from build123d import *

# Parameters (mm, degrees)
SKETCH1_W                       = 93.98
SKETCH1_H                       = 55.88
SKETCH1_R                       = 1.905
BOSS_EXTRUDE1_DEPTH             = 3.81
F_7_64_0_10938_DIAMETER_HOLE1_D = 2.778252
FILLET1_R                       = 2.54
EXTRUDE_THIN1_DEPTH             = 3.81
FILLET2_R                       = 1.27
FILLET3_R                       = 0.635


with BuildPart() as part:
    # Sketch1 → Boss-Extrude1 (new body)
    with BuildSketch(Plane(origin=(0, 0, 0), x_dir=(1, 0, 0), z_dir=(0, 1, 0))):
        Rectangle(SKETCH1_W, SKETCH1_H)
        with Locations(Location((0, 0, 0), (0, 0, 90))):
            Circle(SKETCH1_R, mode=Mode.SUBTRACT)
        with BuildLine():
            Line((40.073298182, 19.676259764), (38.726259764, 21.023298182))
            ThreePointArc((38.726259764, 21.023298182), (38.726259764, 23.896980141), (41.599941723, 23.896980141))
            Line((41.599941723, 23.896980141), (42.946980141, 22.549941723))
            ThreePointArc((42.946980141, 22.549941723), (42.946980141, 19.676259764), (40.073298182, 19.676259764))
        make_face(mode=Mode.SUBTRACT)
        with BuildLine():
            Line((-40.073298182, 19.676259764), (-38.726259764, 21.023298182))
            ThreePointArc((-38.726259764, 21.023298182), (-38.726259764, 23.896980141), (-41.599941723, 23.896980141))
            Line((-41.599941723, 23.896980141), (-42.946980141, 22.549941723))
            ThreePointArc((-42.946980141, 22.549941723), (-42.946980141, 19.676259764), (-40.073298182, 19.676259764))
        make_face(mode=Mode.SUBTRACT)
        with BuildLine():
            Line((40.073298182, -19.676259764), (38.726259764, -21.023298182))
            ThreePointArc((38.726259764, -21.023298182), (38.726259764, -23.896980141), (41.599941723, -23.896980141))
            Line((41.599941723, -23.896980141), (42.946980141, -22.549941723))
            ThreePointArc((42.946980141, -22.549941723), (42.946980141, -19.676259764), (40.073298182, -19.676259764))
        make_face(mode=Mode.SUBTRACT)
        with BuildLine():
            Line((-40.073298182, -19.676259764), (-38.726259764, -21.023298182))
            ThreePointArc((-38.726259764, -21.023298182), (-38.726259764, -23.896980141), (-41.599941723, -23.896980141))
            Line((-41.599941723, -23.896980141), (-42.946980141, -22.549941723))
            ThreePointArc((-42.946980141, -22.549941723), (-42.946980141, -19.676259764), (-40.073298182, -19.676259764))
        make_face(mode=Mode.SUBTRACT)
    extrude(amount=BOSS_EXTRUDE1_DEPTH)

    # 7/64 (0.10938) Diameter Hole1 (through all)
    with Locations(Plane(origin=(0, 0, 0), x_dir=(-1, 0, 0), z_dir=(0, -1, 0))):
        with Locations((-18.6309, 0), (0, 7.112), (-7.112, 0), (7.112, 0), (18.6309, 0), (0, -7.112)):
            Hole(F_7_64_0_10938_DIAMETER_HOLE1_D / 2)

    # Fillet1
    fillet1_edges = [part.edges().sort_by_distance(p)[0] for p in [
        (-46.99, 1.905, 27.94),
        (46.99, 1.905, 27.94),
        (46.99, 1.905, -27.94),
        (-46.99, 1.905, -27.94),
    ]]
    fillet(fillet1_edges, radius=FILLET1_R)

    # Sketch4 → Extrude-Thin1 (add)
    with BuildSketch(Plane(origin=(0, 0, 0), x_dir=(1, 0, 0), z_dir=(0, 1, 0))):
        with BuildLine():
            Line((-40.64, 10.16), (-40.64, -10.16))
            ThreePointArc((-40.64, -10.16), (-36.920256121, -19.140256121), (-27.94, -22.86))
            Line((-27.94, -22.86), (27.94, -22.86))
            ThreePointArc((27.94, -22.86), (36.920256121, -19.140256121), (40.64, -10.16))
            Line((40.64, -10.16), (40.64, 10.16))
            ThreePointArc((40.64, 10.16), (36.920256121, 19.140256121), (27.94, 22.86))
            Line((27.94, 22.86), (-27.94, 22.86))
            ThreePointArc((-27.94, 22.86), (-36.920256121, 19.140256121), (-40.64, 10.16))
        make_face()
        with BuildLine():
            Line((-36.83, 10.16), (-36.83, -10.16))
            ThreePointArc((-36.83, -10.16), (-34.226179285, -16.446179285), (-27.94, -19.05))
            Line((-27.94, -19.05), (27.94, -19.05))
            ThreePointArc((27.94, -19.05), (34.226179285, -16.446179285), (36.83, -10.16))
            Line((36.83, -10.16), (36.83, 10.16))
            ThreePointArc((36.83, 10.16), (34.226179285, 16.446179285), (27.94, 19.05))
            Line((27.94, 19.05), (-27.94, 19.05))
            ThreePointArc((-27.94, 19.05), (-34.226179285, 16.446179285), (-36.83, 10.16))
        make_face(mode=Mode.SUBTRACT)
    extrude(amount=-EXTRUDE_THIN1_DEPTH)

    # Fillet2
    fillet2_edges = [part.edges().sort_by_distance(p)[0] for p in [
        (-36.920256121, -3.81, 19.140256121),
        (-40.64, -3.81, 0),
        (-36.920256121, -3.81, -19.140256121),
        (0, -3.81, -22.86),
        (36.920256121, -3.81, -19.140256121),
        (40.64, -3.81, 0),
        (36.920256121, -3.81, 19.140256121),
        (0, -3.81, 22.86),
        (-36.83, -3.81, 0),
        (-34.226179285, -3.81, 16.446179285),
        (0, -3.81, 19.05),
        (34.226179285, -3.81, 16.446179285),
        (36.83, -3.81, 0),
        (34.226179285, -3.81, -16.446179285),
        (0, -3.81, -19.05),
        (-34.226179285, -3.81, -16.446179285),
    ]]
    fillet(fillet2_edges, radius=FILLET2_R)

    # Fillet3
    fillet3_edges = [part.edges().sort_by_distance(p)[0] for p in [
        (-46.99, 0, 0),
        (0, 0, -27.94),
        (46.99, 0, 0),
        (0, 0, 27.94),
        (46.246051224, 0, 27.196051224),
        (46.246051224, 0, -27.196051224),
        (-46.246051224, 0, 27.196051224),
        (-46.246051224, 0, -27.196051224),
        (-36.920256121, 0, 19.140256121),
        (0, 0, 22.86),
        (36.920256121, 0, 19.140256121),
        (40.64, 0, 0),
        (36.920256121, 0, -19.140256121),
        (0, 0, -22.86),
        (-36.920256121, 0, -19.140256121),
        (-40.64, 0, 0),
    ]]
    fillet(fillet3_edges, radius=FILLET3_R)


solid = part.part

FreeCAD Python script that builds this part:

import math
import FreeCAD as App
import Part
import Sketcher
Q = App.Units.Quantity


def edges_at(feature, points):
    """Names of the edges that pass closest to the given points."""
    edges = feature.Shape.Edges
    near = lambda p: min(range(len(edges)), key=lambda i: edges[i].distToShape(Part.Vertex(*p))[0])
    return sorted({f"Edge{near(p) + 1}" for p in points})

doc = App.newDocument("Part")
body = doc.addObject("PartDesign::Body", "Body")

# Sketch on XZ plane
sketch1 = body.newObject("Sketcher::SketchObject", "Sketch")
sketch1.AttachmentSupport = (doc.getObject("XZ_Plane"), [""])
sketch1.MapMode = "FlatFace"
sketch1.addGeometry(Part.LineSegment(App.Vector(-47, -27.9, 0), App.Vector(-47, 27.9, 0)), False)
sketch1.addGeometry(Part.LineSegment(App.Vector(-47, 27.9, 0), App.Vector(47, 27.9, 0)), False)
sketch1.addGeometry(Part.LineSegment(App.Vector(47, 27.9, 0), App.Vector(47, -27.9, 0)), False)
sketch1.addGeometry(Part.LineSegment(App.Vector(47, -27.9, 0), App.Vector(-47, -27.9, 0)), False)
sketch1.addGeometry(Part.ArcOfCircle(Part.Circle(App.Vector(-41.5, 21.1, 0), App.Vector(0, 0, 1), 2), math.radians(135), math.radians(315)), False)
sketch1.addGeometry(Part.LineSegment(App.Vector(-40.1, 19.7, 0), App.Vector(-38.7, 21, 0)), False)
sketch1.addGeometry(Part.ArcOfCircle(Part.Circle(App.Vector(-40.2, 22.5, 0), App.Vector(0, 0, 1), 2), math.radians(-45), math.radians(135)), False)
sketch1.addGeometry(Part.LineSegment(App.Vector(-41.6, 23.9, 0), App.Vector(-42.9, 22.5, 0)), False)
sketch1.addGeometry(Part.LineSegment(App.Vector(38.7, 21, 0), App.Vector(40.1, 19.7, 0)), False)
sketch1.addGeometry(Part.ArcOfCircle(Part.Circle(App.Vector(41.5, 21.1, 0), App.Vector(0, 0, 1), 2), math.radians(-135), math.radians(45)), False)
sketch1.addGeometry(Part.LineSegment(App.Vector(42.9, 22.5, 0), App.Vector(41.6, 23.9, 0)), False)
sketch1.addGeometry(Part.ArcOfCircle(Part.Circle(App.Vector(40.2, 22.5, 0), App.Vector(0, 0, 1), 2), math.radians(45), math.radians(225)), False)
sketch1.addGeometry(Part.LineSegment(App.Vector(-38.7, -21, 0), App.Vector(-40.1, -19.7, 0)), False)
sketch1.addGeometry(Part.ArcOfCircle(Part.Circle(App.Vector(-41.5, -21.1, 0), App.Vector(0, 0, 1), 2), math.radians(45), math.radians(225)), False)
sketch1.addGeometry(Part.LineSegment(App.Vector(-42.9, -22.5, 0), App.Vector(-41.6, -23.9, 0)), False)
sketch1.addGeometry(Part.ArcOfCircle(Part.Circle(App.Vector(-40.2, -22.5, 0), App.Vector(0, 0, 1), 2), math.radians(-135), math.radians(45)), False)
sketch1.addGeometry(Part.Circle(App.Vector(0, 0, 0), App.Vector(0, 0, 1), 1.9), False)
sketch1.addGeometry(Part.ArcOfCircle(Part.Circle(App.Vector(41.5, -21.1, 0), App.Vector(0, 0, 1), 2), math.radians(-45), math.radians(135)), False)
sketch1.addGeometry(Part.LineSegment(App.Vector(40.1, -19.7, 0), App.Vector(38.7, -21, 0)), False)
sketch1.addGeometry(Part.ArcOfCircle(Part.Circle(App.Vector(40.2, -22.5, 0), App.Vector(0, 0, 1), 2), math.radians(135), math.radians(315)), False)
sketch1.addGeometry(Part.LineSegment(App.Vector(41.6, -23.9, 0), App.Vector(42.9, -22.5, 0)), False)
sketch1.addConstraint(Sketcher.Constraint("Coincident", 0, 2, 1, 1))
sketch1.addConstraint(Sketcher.Constraint("Coincident", 1, 2, 2, 1))
sketch1.addConstraint(Sketcher.Constraint("Coincident", 2, 2, 3, 1))
sketch1.addConstraint(Sketcher.Constraint("Coincident", 3, 2, 0, 1))
sketch1.addConstraint(Sketcher.Constraint("Tangent", 4, 2, 5, 1))
sketch1.addConstraint(Sketcher.Constraint("Tangent", 5, 2, 6, 1))
sketch1.addConstraint(Sketcher.Constraint("Tangent", 6, 2, 7, 1))
sketch1.addConstraint(Sketcher.Constraint("Tangent", 7, 2, 4, 1))
sketch1.addConstraint(Sketcher.Constraint("Tangent", 8, 2, 9, 1))
sketch1.addConstraint(Sketcher.Constraint("Tangent", 9, 2, 10, 1))
sketch1.addConstraint(Sketcher.Constraint("Tangent", 10, 2, 11, 1))
sketch1.addConstraint(Sketcher.Constraint("Tangent", 11, 2, 8, 1))
sketch1.addConstraint(Sketcher.Constraint("Tangent", 12, 2, 13, 1))
sketch1.addConstraint(Sketcher.Constraint("Tangent", 13, 2, 14, 1))
sketch1.addConstraint(Sketcher.Constraint("Tangent", 14, 2, 15, 1))
sketch1.addConstraint(Sketcher.Constraint("Tangent", 15, 2, 12, 1))
sketch1.addConstraint(Sketcher.Constraint("Tangent", 17, 2, 18, 1))
sketch1.addConstraint(Sketcher.Constraint("Tangent", 18, 2, 19, 1))
sketch1.addConstraint(Sketcher.Constraint("Tangent", 19, 2, 20, 1))
sketch1.addConstraint(Sketcher.Constraint("Tangent", 20, 2, 17, 1))
sketch1.addConstraint(Sketcher.Constraint("Vertical", 0))
sketch1.addConstraint(Sketcher.Constraint("Horizontal", 1))
sketch1.addConstraint(Sketcher.Constraint("Vertical", 2))
sketch1.addConstraint(Sketcher.Constraint("Horizontal", 3))
sketch1.addConstraint(Sketcher.Constraint("Coincident", 16, 3, -1, 1))
sketch1.addConstraint(Sketcher.Constraint("Equal", 4, 6))
sketch1.addConstraint(Sketcher.Constraint("Equal", 6, 9))
sketch1.addConstraint(Sketcher.Constraint("Equal", 9, 11))
sketch1.addConstraint(Sketcher.Constraint("Equal", 11, 13))
sketch1.addConstraint(Sketcher.Constraint("Equal", 13, 15))
sketch1.addConstraint(Sketcher.Constraint("Equal", 15, 17))
sketch1.addConstraint(Sketcher.Constraint("Equal", 17, 19))
sketch1.addConstraint(Sketcher.Constraint("Symmetric", 9, 3, 13, 3, -1, 1))
sketch1.addConstraint(Sketcher.Constraint("Symmetric", 11, 3, 15, 3, -1, 1))
sketch1.addConstraint(Sketcher.Constraint("Symmetric", 4, 3, 17, 3, -1, 1))
sketch1.addConstraint(Sketcher.Constraint("Symmetric", 6, 3, 19, 3, -1, 1))
sketch1.addConstraint(Sketcher.Constraint("Symmetric", 0, 2, 2, 2, -1, 1))
sketch1.addConstraint(Sketcher.Constraint("Symmetric", 4, 3, 9, 3, -2))
sketch1.addConstraint(Sketcher.Constraint("Symmetric", 6, 3, 11, 3, -2))
sketch1.addConstraint(Sketcher.Constraint("Perpendicular", 7, 8))
sketch1.addConstraint(Sketcher.Constraint("Diameter", 16, Q("0.15 in")))
sketch1.addConstraint(Sketcher.Constraint("Radius", 4, Q("0.08 in")))
sketch1.addConstraint(Sketcher.Constraint("DistanceX", 1, 1, 1, 2, Q("3.7 in")))
sketch1.addConstraint(Sketcher.Constraint("DistanceY", 0, 1, 0, 2, Q("2.2 in")))
sketch1.addConstraint(Sketcher.Constraint("Distance", 5, Q("0.075 in")))
sketch1.addConstraint(Sketcher.Constraint("DistanceY", -1, 1, 4, 3, Q("21.113101 mm")))
sketch1.addConstraint(Sketcher.Constraint("DistanceX", 6, 3, -1, 1, Q("40.163101 mm")))
pad1 = body.newObject("PartDesign::Pad", "Pad")
pad1.Profile = sketch1
pad1.Length = Q("0.15 in")
pad1.Reversed = True

# Sketch on XZ plane
sketch2 = body.newObject("Sketcher::SketchObject", "Sketch001")
sketch2.AttachmentSupport = (doc.getObject("XZ_Plane"), [""])
sketch2.MapMode = "FlatFace"
sketch2.addGeometry(Part.Circle(App.Vector(18.6, 0, 0), App.Vector(0, 0, 1), 1.4), False)
sketch2.addGeometry(Part.Circle(App.Vector(0, -7.1, 0), App.Vector(0, 0, 1), 1.4), False)
sketch2.addGeometry(Part.Circle(App.Vector(7.1, 0, 0), App.Vector(0, 0, 1), 1.4), False)
sketch2.addGeometry(Part.Circle(App.Vector(-7.1, 0, 0), App.Vector(0, 0, 1), 1.4), False)
sketch2.addGeometry(Part.Circle(App.Vector(-18.6, 0, 0), App.Vector(0, 0, 1), 1.4), False)
sketch2.addGeometry(Part.Circle(App.Vector(0, 7.1, 0), App.Vector(0, 0, 1), 1.4), False)
sketch2.addConstraint(Sketcher.Constraint("Equal", 0, 1))
sketch2.addConstraint(Sketcher.Constraint("Equal", 1, 2))
sketch2.addConstraint(Sketcher.Constraint("Equal", 2, 3))
sketch2.addConstraint(Sketcher.Constraint("Equal", 3, 4))
sketch2.addConstraint(Sketcher.Constraint("Equal", 4, 5))
sketch2.addConstraint(Sketcher.Constraint("Symmetric", 2, 3, 3, 3, -1, 1))
sketch2.addConstraint(Sketcher.Constraint("Symmetric", 0, 3, 4, 3, -1, 1))
sketch2.addConstraint(Sketcher.Constraint("Symmetric", 1, 3, 5, 3, -1, 1))
sketch2.addConstraint(Sketcher.Constraint("PointOnObject", 0, 3, -1))
sketch2.addConstraint(Sketcher.Constraint("PointOnObject", 1, 3, -2))
sketch2.addConstraint(Sketcher.Constraint("PointOnObject", 2, 3, -1))
sketch2.addConstraint(Sketcher.Constraint("DistanceY", 1, 3, -1, 1, Q("0.28 in")))
sketch2.addConstraint(Sketcher.Constraint("DistanceX", -1, 1, 2, 3, Q("0.28 in")))
sketch2.addConstraint(Sketcher.Constraint("DistanceX", 4, 3, 0, 3, Q("1.467 in")))
sketch2.addConstraint(Sketcher.Constraint("Diameter", 0, Q("2.778252 mm")))
doc.recompute()
hole = body.newObject("PartDesign::Hole", "Hole")
hole.Profile = sketch2
hole.ThreadType = "None"
hole.Diameter = 2.778252
hole.DepthType = "ThroughAll"
doc.recompute()

fillet = body.newObject("PartDesign::Fillet", "Fillet")
fillet.Base = (hole, edges_at(hole, [
    (-46.99, 1.905, 27.94),
    (46.99, 1.905, 27.94),
    (46.99, 1.905, -27.94),
    (-46.99, 1.905, -27.94),
]))
fillet.Radius = Q("0.1 in")

# Sketch on XZ plane
sketch3 = body.newObject("Sketcher::SketchObject", "Sketch002")
sketch3.AttachmentSupport = (doc.getObject("XZ_Plane"), [""])
sketch3.MapMode = "FlatFace"
sketch3.addGeometry(Part.LineSegment(App.Vector(-41, -10, 0), App.Vector(-41, 10, 0)), False)
sketch3.addGeometry(Part.ArcOfCircle(Part.Circle(App.Vector(-28, 10, 0), App.Vector(0, 0, 1), 13), math.radians(90), math.radians(180)), False)
sketch3.addGeometry(Part.LineSegment(App.Vector(-28, 23, 0), App.Vector(28, 23, 0)), False)
sketch3.addGeometry(Part.ArcOfCircle(Part.Circle(App.Vector(28, 10, 0), App.Vector(0, 0, 1), 13), math.radians(0), math.radians(90)), False)
sketch3.addGeometry(Part.LineSegment(App.Vector(41, 10, 0), App.Vector(41, -10, 0)), False)
sketch3.addGeometry(Part.ArcOfCircle(Part.Circle(App.Vector(28, -10, 0), App.Vector(0, 0, 1), 13), math.radians(-90), math.radians(0)), False)
sketch3.addGeometry(Part.LineSegment(App.Vector(28, -23, 0), App.Vector(-28, -23, 0)), False)
sketch3.addGeometry(Part.ArcOfCircle(Part.Circle(App.Vector(-28, -10, 0), App.Vector(0, 0, 1), 13), math.radians(180), math.radians(270)), False)
sketch3.addGeometry(Part.LineSegment(App.Vector(-37, 10, 0), App.Vector(-37, -10, 0)), False)
sketch3.addGeometry(Part.ArcOfCircle(Part.Circle(App.Vector(-28, -10, 0), App.Vector(0, 0, 1), 9), math.radians(180), math.radians(270)), False)
sketch3.addGeometry(Part.LineSegment(App.Vector(-28, -19, 0), App.Vector(28, -19, 0)), False)
sketch3.addGeometry(Part.ArcOfCircle(Part.Circle(App.Vector(28, -10, 0), App.Vector(0, 0, 1), 9), math.radians(-90), math.radians(0)), False)
sketch3.addGeometry(Part.LineSegment(App.Vector(37, -10, 0), App.Vector(37, 10, 0)), False)
sketch3.addGeometry(Part.ArcOfCircle(Part.Circle(App.Vector(28, 10, 0), App.Vector(0, 0, 1), 9), math.radians(0), math.radians(90)), False)
sketch3.addGeometry(Part.LineSegment(App.Vector(28, 19, 0), App.Vector(-28, 19, 0)), False)
sketch3.addGeometry(Part.ArcOfCircle(Part.Circle(App.Vector(-28, 10, 0), App.Vector(0, 0, 1), 9), math.radians(90), math.radians(180)), False)
sketch3.addConstraint(Sketcher.Constraint("Tangent", 0, 2, 1, 2))
sketch3.addConstraint(Sketcher.Constraint("Tangent", 1, 1, 2, 1))
sketch3.addConstraint(Sketcher.Constraint("Tangent", 2, 2, 3, 2))
sketch3.addConstraint(Sketcher.Constraint("Tangent", 3, 1, 4, 1))
sketch3.addConstraint(Sketcher.Constraint("Tangent", 4, 2, 5, 2))
sketch3.addConstraint(Sketcher.Constraint("Tangent", 5, 1, 6, 1))
sketch3.addConstraint(Sketcher.Constraint("Tangent", 6, 2, 7, 2))
sketch3.addConstraint(Sketcher.Constraint("Tangent", 7, 1, 0, 1))
sketch3.addConstraint(Sketcher.Constraint("Tangent", 8, 2, 9, 1))
sketch3.addConstraint(Sketcher.Constraint("Tangent", 9, 2, 10, 1))
sketch3.addConstraint(Sketcher.Constraint("Tangent", 10, 2, 11, 1))
sketch3.addConstraint(Sketcher.Constraint("Tangent", 11, 2, 12, 1))
sketch3.addConstraint(Sketcher.Constraint("Tangent", 12, 2, 13, 1))
sketch3.addConstraint(Sketcher.Constraint("Tangent", 13, 2, 14, 1))
sketch3.addConstraint(Sketcher.Constraint("Tangent", 14, 2, 15, 1))
sketch3.addConstraint(Sketcher.Constraint("Tangent", 15, 2, 8, 1))
sketch3.addConstraint(Sketcher.Constraint("Vertical", 0))
sketch3.addConstraint(Sketcher.Constraint("Horizontal", 2))
sketch3.addConstraint(Sketcher.Constraint("Vertical", 4))
sketch3.addConstraint(Sketcher.Constraint("Horizontal", 6))
sketch3.addConstraint(Sketcher.Constraint("Vertical", 8))
sketch3.addConstraint(Sketcher.Constraint("Horizontal", 10))
sketch3.addConstraint(Sketcher.Constraint("Vertical", 12))
sketch3.addConstraint(Sketcher.Constraint("Horizontal", 14))
sketch3.addConstraint(Sketcher.Constraint("Coincident", 9, 3, 7, 3))
sketch3.addConstraint(Sketcher.Constraint("Coincident", 11, 3, 5, 3))
sketch3.addConstraint(Sketcher.Constraint("Coincident", 13, 3, 3, 3))
sketch3.addConstraint(Sketcher.Constraint("Equal", 1, 3))
sketch3.addConstraint(Sketcher.Constraint("Equal", 3, 5))
sketch3.addConstraint(Sketcher.Constraint("Equal", 5, 7))
sketch3.addConstraint(Sketcher.Constraint("Equal", 13, 15))
sketch3.addConstraint(Sketcher.Constraint("Symmetric", 1, 3, 5, 3, -1, 1))
sketch3.addConstraint(Sketcher.Constraint("Radius", 1, Q("0.5 in")))
sketch3.addConstraint(Sketcher.Constraint("Radius", 9, Q("0.35 in")))
sketch3.addConstraint(Sketcher.Constraint("DistanceX", 2, 1, 2, 2, Q("2.2 in")))
sketch3.addConstraint(Sketcher.Constraint("DistanceY", 0, 1, 0, 2, Q("0.8 in")))
pad2 = body.newObject("PartDesign::Pad", "Pad001")
pad2.Profile = sketch3
pad2.Length = Q("0.15 in")
doc.recompute()

fillet2 = body.newObject("PartDesign::Fillet", "Fillet001")
fillet2.Base = (pad2, edges_at(pad2, [
    (-36.92, -3.81, 19.14),
    (-40.64, -3.81, 0),
    (-36.92, -3.81, -19.14),
    (0, -3.81, -22.86),
    (36.92, -3.81, -19.14),
    (40.64, -3.81, 0),
    (36.92, -3.81, 19.14),
    (0, -3.81, 22.86),
    (-36.83, -3.81, 0),
    (-34.226, -3.81, 16.446),
    (0, -3.81, 19.05),
    (34.226, -3.81, 16.446),
    (36.83, -3.81, 0),
    (34.226, -3.81, -16.446),
    (0, -3.81, -19.05),
    (-34.226, -3.81, -16.446),
]))
fillet2.Radius = Q("0.05 in")
doc.recompute()

fillet3 = body.newObject("PartDesign::Fillet", "Fillet002")
fillet3.Base = (fillet2, edges_at(fillet2, [
    (-46.99, 0, 0),
    (0, 0, -27.94),
    (46.99, 0, 0),
    (0, 0, 27.94),
    (46.246, 0, 27.196),
    (46.246, 0, -27.196),
    (-46.246, 0, 27.196),
    (-46.246, 0, -27.196),
    (-36.92, 0, 19.14),
    (0, 0, 22.86),
    (36.92, 0, 19.14),
    (40.64, 0, 0),
    (36.92, 0, -19.14),
    (0, 0, -22.86),
    (-36.92, 0, -19.14),
    (-40.64, 0, 0),
]))
fillet3.Radius = Q("0.025 in")

doc.recompute()
